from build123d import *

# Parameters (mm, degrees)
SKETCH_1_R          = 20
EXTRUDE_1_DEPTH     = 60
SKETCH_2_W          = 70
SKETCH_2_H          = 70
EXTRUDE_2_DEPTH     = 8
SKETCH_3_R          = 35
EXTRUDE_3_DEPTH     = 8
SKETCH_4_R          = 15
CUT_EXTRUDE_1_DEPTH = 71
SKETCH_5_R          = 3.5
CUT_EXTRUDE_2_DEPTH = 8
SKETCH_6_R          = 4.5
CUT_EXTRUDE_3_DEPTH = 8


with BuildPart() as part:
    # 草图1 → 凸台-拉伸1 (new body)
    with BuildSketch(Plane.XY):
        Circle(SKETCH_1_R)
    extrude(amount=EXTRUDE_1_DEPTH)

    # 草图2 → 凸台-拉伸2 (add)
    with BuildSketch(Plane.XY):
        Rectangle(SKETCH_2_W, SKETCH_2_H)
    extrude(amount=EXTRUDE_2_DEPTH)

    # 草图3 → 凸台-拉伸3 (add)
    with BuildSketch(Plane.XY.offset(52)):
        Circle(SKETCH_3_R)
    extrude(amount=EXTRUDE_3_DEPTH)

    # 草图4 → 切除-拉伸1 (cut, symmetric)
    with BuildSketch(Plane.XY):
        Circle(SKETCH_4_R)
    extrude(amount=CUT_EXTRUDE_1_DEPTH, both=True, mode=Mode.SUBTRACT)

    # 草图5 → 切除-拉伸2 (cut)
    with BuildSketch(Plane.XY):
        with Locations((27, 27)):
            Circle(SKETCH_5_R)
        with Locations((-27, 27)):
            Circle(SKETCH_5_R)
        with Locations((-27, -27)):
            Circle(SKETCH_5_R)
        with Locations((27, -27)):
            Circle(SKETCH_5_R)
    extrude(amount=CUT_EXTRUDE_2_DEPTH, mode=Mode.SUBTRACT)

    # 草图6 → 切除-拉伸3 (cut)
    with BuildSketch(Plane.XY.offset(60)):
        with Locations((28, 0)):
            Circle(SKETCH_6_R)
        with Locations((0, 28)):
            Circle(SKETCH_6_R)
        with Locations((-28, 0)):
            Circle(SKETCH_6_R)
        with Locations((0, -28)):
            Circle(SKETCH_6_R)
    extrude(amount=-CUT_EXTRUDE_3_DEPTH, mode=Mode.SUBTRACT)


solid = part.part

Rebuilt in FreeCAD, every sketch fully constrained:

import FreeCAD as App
import Part
import Sketcher


def add_polygon(sketch, points):
    """Adds a closed chain of lines whose ends are joined by coincident constraints."""
    first, n = sketch.GeometryCount, len(points)
    for a, b in zip(points, points[1:] + points[:1]):
        sketch.addGeometry(Part.LineSegment(App.Vector(*a, 0), App.Vector(*b, 0)), False)
    for i in range(n):
        sketch.addConstraint(Sketcher.Constraint("Coincident", first + i, 2, first + (i + 1) % n, 1))

doc = App.newDocument("Part")
body = doc.addObject("PartDesign::Body", "Body")

sketch1 = body.newObject("Sketcher::SketchObject", "Sketch")
sketch1.AttachmentSupport = (doc.getObject("XY_Plane"), [""])
sketch1.MapMode = "FlatFace"
sketch1.addGeometry(Part.Circle(App.Vector(0, 0, 0), App.Vector(0, 0, 1), 20), False)
sketch1.addConstraint(Sketcher.Constraint("Coincident", 0, 3, -1, 1))
sketch1.addConstraint(Sketcher.Constraint("Diameter", 0, 40.0))
pad1 = body.newObject("PartDesign::Pad", "Pad")
pad1.Profile = sketch1
pad1.Length = 60

sketch2 = body.newObject("Sketcher::SketchObject", "Sketch001")
sketch2.AttachmentSupport = (doc.getObject("XY_Plane"), [""])
sketch2.MapMode = "FlatFace"
add_polygon(sketch2, [(-35, 35), (-35, -35), (35, -35), (35, 35)])
sketch2.addConstraint(Sketcher.Constraint("Vertical", 0))
sketch2.addConstraint(Sketcher.Constraint("Horizontal", 1))
sketch2.addConstraint(Sketcher.Constraint("Vertical", 2))
sketch2.addConstraint(Sketcher.Constraint("Horizontal", 3))
sketch2.addConstraint(Sketcher.Constraint("Symmetric", 0, 2, 2, 2, -1, 1))
sketch2.addConstraint(Sketcher.Constraint("Equal", 3, 0))
sketch2.addConstraint(Sketcher.Constraint("DistanceX", 1, 1, 1, 2, 70.0))
pad2 = body.newObject("PartDesign::Pad", "Pad001")
pad2.Profile = sketch2
pad2.Length = 8

sketch3 = body.newObject("Sketcher::SketchObject", "Sketch002")
sketch3.AttachmentSupport = (doc.getObject("XY_Plane"), [""])
sketch3.MapMode = "FlatFace"
sketch3.AttachmentOffset = App.Placement(App.Vector(0, 0, 52), App.Rotation())
sketch3.addGeometry(Part.Circle(App.Vector(0, 0, 0), App.Vector(0, 0, 1), 35), False)
sketch3.addConstraint(Sketcher.Constraint("Coincident", 0, 3, -1, 1))
sketch3.addConstraint(Sketcher.Constraint("Diameter", 0, 70.0))
pad3 = body.newObject("PartDesign::Pad", "Pad002")
pad3.Profile = sketch3
pad3.Length = 8

sketch4 = body.newObject("Sketcher::SketchObject", "Sketch003")
sketch4.AttachmentSupport = (doc.getObject("XY_Plane"), [""])
sketch4.MapMode = "FlatFace"
sketch4.addGeometry(Part.Circle(App.Vector(0, 0, 0), App.Vector(0, 0, 1), 15), False)
sketch4.addConstraint(Sketcher.Constraint("Coincident", 0, 3, -1, 1))
sketch4.addConstraint(Sketcher.Constraint("Diameter", 0, 30.0))
pocket1 = body.newObject("PartDesign::Pocket", "Pocket")
pocket1.Profile = sketch4
pocket1.Length = 142
pocket1.Midplane = True

sketch5 = body.newObject("Sketcher::SketchObject", "Sketch004")
sketch5.AttachmentSupport = (doc.getObject("XY_Plane"), [""])
sketch5.MapMode = "FlatFace"
sketch5.addGeometry(Part.Circle(App.Vector(27, 27, 0), App.Vector(0, 0, 1), 3.5), False)
sketch5.addGeometry(Part.Circle(App.Vector(-27, 27, 0), App.Vector(0, 0, 1), 3.5), False)
sketch5.addGeometry(Part.Circle(App.Vector(-27, -27, 0), App.Vector(0, 0, 1), 3.5), False)
sketch5.addGeometry(Part.Circle(App.Vector(27, -27, 0), App.Vector(0, 0, 1), 3.5), False)
sketch5.addConstraint(Sketcher.Constraint("Equal", 0, 1))
sketch5.addConstraint(Sketcher.Constraint("Equal", 1, 2))
sketch5.addConstraint(Sketcher.Constraint("Equal", 2, 3))
sketch5.addConstraint(Sketcher.Constraint("Symmetric", 0, 3, 2, 3, -1, 1))
sketch5.addConstraint(Sketcher.Constraint("Symmetric", 1, 3, 3, 3, -1, 1))
sketch5.addConstraint(Sketcher.Constraint("Symmetric", 0, 3, 1, 3, -2))
sketch5.addConstraint(Sketcher.Constraint("Diameter", 0, 7.0))
sketch5.addConstraint(Sketcher.Constraint("DistanceX", -1, 1, 0, 3, 27.0))
sketch5.addConstraint(Sketcher.Constraint("DistanceY", -1, 1, 0, 3, 27.0))
pocket2 = body.newObject("PartDesign::Pocket", "Pocket001")
pocket2.Profile = sketch5
pocket2.Length = 8
pocket2.Reversed = True

sketch6 = body.newObject("Sketcher::SketchObject", "Sketch005")
sketch6.AttachmentSupport = (doc.getObject("XY_Plane"), [""])
sketch6.MapMode = "FlatFace"
sketch6.AttachmentOffset = App.Placement(App.Vector(0, 0, 60), App.Rotation())
sketch6.addGeometry(Part.Circle(App.Vector(28, 0, 0), App.Vector(0, 0, 1), 4.5), False)
sketch6.addGeometry(Part.Circle(App.Vector(0, 28, 0), App.Vector(0, 0, 1), 4.5), False)
sketch6.addGeometry(Part.Circle(App.Vector(-28, 0, 0), App.Vector(0, 0, 1), 4.5), False)
sketch6.addGeometry(Part.Circle(App.Vector(0, -28, 0), App.Vector(0, 0, 1), 4.5), False)
sketch6.addConstraint(Sketcher.Constraint("Equal", 0, 1))
sketch6.addConstraint(Sketcher.Constraint("Equal", 1, 2))
sketch6.addConstraint(Sketcher.Constraint("Equal", 2, 3))
sketch6.addConstraint(Sketcher.Constraint("Symmetric", 0, 3, 2, 3, -1, 1))
sketch6.addConstraint(Sketcher.Constraint("Symmetric", 1, 3, 3, 3, -1, 1))
sketch6.addConstraint(Sketcher.Constraint("PointOnObject", 0, 3, -1))
sketch6.addConstraint(Sketcher.Constraint("PointOnObject", 1, 3, -2))
sketch6.addConstraint(Sketcher.Constraint("Diameter", 0, 9.0))
sketch6.addConstraint(Sketcher.Constraint("DistanceX", -1, 1, 0, 3, 28.0))
sketch6.addConstraint(Sketcher.Constraint("DistanceY", -1, 1, 1, 3, 28.0))
pocket3 = body.newObject("PartDesign::Pocket", "Pocket002")
pocket3.Profile = sketch6
pocket3.Length = 8

doc.recompute()
